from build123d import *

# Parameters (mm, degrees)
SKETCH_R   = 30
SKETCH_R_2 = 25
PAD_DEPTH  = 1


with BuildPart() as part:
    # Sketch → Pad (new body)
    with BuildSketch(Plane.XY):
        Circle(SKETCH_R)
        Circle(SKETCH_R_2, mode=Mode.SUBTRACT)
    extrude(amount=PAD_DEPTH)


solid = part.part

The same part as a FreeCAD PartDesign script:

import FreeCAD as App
import Part
import Sketcher
Q = App.Units.Quantity

doc = App.newDocument("Part")
body = doc.addObject("PartDesign::Body", "Body")

# Sketch on XY plane
sketch1 = body.newObject("Sketcher::SketchObject", "Sketch")
sketch1.AttachmentSupport = (doc.getObject("XY_Plane"), [""])
sketch1.MapMode = "FlatFace"
sketch1.addGeometry(Part.Circle(App.Vector(0, 0, 0), App.Vector(0, 0, 1), 30), False)
sketch1.addGeometry(Part.Circle(App.Vector(0, 0, 0), App.Vector(0, 0, 1), 25), False)
sketch1.addConstraint(Sketcher.Constraint("Coincident", 0, 3, -1, 1))
sketch1.addConstraint(Sketcher.Constraint("Coincident", 1, 3, -1, 1))
sketch1.addConstraint(Sketcher.Constraint("Diameter", 0, Q("60 mm")))
sketch1.addConstraint(Sketcher.Constraint("Diameter", 1, Q("50 mm")))
pad1 = body.newObject("PartDesign::Pad", "Pad")
pad1.Profile = sketch1
pad1.Length = 1

doc.recompute()
